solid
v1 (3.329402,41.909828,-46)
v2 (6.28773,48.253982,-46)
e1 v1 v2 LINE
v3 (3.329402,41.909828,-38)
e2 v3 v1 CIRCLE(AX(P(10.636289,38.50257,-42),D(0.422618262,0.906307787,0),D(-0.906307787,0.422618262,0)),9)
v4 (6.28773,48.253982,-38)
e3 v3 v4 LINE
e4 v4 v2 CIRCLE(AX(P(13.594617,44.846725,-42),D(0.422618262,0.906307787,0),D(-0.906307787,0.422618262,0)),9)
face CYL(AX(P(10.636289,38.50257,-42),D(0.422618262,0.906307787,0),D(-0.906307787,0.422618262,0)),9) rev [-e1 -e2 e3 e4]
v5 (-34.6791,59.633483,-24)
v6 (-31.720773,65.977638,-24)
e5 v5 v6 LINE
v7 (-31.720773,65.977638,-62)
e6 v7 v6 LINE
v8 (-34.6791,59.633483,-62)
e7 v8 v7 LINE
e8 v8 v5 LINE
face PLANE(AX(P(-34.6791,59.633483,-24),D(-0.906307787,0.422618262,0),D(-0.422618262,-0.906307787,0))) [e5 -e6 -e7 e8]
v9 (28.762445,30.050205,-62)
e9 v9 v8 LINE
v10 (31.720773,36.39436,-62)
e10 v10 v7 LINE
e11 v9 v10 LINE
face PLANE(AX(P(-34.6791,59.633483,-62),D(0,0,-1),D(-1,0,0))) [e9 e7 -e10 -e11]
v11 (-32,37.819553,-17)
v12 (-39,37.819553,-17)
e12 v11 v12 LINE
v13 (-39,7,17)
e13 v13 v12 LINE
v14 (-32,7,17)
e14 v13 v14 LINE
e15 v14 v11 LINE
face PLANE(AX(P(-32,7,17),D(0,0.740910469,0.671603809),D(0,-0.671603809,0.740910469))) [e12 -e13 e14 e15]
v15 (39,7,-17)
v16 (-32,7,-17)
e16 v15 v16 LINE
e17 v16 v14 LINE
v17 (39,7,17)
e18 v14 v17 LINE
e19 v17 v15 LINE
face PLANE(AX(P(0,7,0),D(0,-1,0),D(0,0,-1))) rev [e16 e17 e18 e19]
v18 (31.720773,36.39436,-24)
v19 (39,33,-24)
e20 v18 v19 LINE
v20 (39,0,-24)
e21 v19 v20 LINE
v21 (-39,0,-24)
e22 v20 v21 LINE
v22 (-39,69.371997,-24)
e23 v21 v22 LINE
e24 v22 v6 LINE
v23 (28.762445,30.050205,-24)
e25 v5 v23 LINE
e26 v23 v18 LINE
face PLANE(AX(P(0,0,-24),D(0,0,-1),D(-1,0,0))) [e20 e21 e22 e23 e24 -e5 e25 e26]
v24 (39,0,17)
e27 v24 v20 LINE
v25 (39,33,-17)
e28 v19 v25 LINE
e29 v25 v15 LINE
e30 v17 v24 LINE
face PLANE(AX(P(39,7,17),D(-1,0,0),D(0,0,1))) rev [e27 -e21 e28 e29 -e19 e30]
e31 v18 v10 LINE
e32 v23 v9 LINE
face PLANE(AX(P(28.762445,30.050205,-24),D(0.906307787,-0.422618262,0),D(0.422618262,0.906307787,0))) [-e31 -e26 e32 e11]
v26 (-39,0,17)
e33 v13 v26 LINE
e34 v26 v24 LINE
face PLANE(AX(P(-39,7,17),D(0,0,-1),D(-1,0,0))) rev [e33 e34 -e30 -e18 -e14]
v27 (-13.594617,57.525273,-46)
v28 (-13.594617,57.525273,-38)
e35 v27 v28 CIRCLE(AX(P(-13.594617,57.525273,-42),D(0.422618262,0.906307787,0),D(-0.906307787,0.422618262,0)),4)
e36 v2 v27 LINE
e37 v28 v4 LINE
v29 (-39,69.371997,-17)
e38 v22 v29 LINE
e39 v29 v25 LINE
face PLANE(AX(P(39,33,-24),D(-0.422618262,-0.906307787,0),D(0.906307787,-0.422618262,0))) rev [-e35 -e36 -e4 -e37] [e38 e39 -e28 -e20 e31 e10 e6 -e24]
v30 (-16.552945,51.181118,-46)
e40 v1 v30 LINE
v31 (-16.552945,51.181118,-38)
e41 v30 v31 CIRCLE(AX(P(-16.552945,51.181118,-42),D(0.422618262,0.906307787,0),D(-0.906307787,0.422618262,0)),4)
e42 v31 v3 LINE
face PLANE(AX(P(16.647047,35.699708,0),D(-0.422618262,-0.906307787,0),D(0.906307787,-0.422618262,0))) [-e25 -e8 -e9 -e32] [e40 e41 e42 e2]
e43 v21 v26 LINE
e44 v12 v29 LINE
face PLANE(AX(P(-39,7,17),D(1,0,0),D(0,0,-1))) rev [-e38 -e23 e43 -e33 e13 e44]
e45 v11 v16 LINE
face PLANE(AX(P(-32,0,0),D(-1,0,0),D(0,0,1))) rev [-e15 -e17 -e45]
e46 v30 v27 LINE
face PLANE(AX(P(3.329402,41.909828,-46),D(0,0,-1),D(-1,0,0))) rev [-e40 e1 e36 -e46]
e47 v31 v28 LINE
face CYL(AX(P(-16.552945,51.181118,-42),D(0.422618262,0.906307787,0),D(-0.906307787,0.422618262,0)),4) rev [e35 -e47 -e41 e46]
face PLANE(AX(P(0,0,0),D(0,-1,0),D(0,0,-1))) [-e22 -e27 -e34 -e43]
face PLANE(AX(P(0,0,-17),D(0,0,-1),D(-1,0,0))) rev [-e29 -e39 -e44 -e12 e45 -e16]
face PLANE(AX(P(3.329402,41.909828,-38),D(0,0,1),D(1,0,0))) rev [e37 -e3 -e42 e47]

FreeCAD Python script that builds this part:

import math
import FreeCAD as App
import Part
import Sketcher
from FreeCAD import Vector
Q = App.Units.Quantity


def add_polygon(sketch, points):
    """Adds a closed chain of lines whose ends are joined by coincident constraints."""
    first, n = sketch.GeometryCount, len(points)
    for a, b in zip(points, points[1:] + points[:1]):
        sketch.addGeometry(Part.LineSegment(App.Vector(*a, 0), App.Vector(*b, 0)), False)
    for i in range(n):
        sketch.addConstraint(Sketcher.Constraint("Coincident", first + i, 2, first + (i + 1) % n, 1))

doc = App.newDocument("Part")
body = doc.addObject("PartDesign::Body", "Body")

# Sketch on XZ plane
sketch1 = doc.addObject("Sketcher::SketchObject", "Sketch")
body.addObject(sketch1)
sketch1.AttachmentSupport = (doc.XZ_Plane, [""])
sketch1.MapMode = "FlatFace"
add_polygon(sketch1, [(-39, -17), (-39, 17), (39, 17), (39, -17)])  # lines 0-3
sketch1.addConstraint([
    Sketcher.Constraint("Vertical", 0),
    Sketcher.Constraint("Horizontal", 1),
    Sketcher.Constraint("Vertical", 2),
    Sketcher.Constraint("Horizontal", 3),
    Sketcher.Constraint("Symmetric", 0, 2, 2, 2, -1, 1),
    Sketcher.Constraint("DistanceX", 1, 1, 1, 2, 78.0),
    Sketcher.Constraint("DistanceY", 0, 1, 0, 2, 34.0),
])
pad1 = doc.addObject("PartDesign::Pad", "Pad")
body.addObject(pad1)
pad1.Profile = sketch1
pad1.Length = 7
pad1.Reversed = True

# Sketch on YZ plane
sketch2 = doc.addObject("Sketcher::SketchObject", "Sketch001")
body.addObject(sketch2)
sketch2.AttachmentSupport = (doc.YZ_Plane, [""])
sketch2.MapMode = "FlatFace"
sketch2.AttachmentOffset = App.Placement(Vector(0, 0, -39), App.Rotation())
add_polygon(sketch2, [(7, 17), (38, -17), (7, -17)])  # lines 0-2
sketch2.addConstraint([
    Sketcher.Constraint("Horizontal", 1),
    Sketcher.Constraint("Vertical", 2),
    Sketcher.Constraint("DistanceY", 2, 1, 2, 2, 34.0),
    Sketcher.Constraint("DistanceY", 0, 2, -1, 1, 17.0),
    Sketcher.Constraint("DistanceX", -1, 1, 1, 2, 7.0),
    Sketcher.Constraint("DistanceX", 1, 2, 1, 1, 30.819553),
])
pad2 = doc.addObject("PartDesign::Pad", "Pad001")
body.addObject(pad2)
pad2.Profile = sketch2
pad2.Length = 7

# Sketch on XY plane
sketch3 = doc.addObject("Sketcher::SketchObject", "Sketch002")
body.addObject(sketch3)
sketch3.AttachmentSupport = (doc.XY_Plane, [""])
sketch3.MapMode = "FlatFace"
sketch3.AttachmentOffset = App.Placement(Vector(0, 0, -17), App.Rotation())
add_polygon(sketch3, [(39, 33), (39, 0), (-39, 0), (-39, 69)])  # lines 0-3
sketch3.addConstraint([
    Sketcher.Constraint("Vertical", 0),
    Sketcher.Constraint("Horizontal", 1),
    Sketcher.Constraint("Vertical", 2),
    Sketcher.Constraint("Symmetric", 0, 2, 1, 2, -1, 1),
    Sketcher.Constraint("DistanceX", 1, 2, 1, 1, 78.0),
    Sketcher.Constraint("DistanceY", 0, 2, 0, 1, 33.0),
    Sketcher.Constraint("Angle", 3, Q("-25 deg")),
])
pad3 = doc.addObject("PartDesign::Pad", "Pad002")
body.addObject(pad3)
pad3.Profile = sketch3
pad3.Length = 7
pad3.Reversed = True

# Sketch on an angled plane
sketch4 = doc.addObject("Sketcher::SketchObject", "Sketch003")
body.addObject(sketch4)
sketch4.Placement = App.Placement(Vector(19.605375, 42.043862, 0), App.Rotation(Vector(0.906307787, -0.422618262, 0), Vector(0, 0, -1), Vector(0.422618262, 0.906307787, 0), "ZXY"))
add_polygon(sketch4, [(-57, 62), (-57, 24), (13, 24), (13, 62)])  # lines 0-3
sketch4.addConstraint([
    Sketcher.Constraint("Vertical", 0),
    Sketcher.Constraint("Horizontal", 1),
    Sketcher.Constraint("Vertical", 2),
    Sketcher.Constraint("Horizontal", 3),
    Sketcher.Constraint("DistanceX", 1, 1, 1, 2, 70.0),
    Sketcher.Constraint("DistanceY", 0, 2, 0, 1, 38.0),
    Sketcher.Constraint("DistanceY", -1, 1, 0, 2, 24.0),
    Sketcher.Constraint("DistanceX", 0, 2, -1, 1, 56.632138),
])
pad4 = doc.addObject("PartDesign::Pad", "Pad003")
body.addObject(pad4)
pad4.Profile = sketch4
pad4.Length = 7
pad4.Reversed = True

# Sketch on an angled plane
sketch5 = doc.addObject("Sketcher::SketchObject", "Sketch004")
body.addObject(sketch5)
sketch5.Placement = App.Placement(Vector(19.605375, 42.043862, 0), App.Rotation(Vector(0.906307787, -0.422618262, 0), Vector(0, 0, -1), Vector(0.422618262, 0.906307787, 0), "ZXY"))
sketch5.addGeometry([
    Part.LineSegment(Vector(-36.6, 38, 0), Vector(-14.7, 38, 0)),
    Part.ArcOfCircle(Part.Circle(Vector(-6.6, 42, 0), Vector(0, 0, 1), 9), math.radians(-154), math.radians(154)),
    Part.LineSegment(Vector(-14.7, 46, 0), Vector(-36.6, 46, 0)),
    Part.ArcOfCircle(Part.Circle(Vector(-36.6, 42, 0), Vector(0, 0, 1), 4), math.radians(90), math.radians(270)),
], False)
sketch5.addConstraint([
    Sketcher.Constraint("Coincident", 0, 2, 1, 1),
    Sketcher.Constraint("Coincident", 1, 2, 2, 1),
    Sketcher.Constraint("Tangent", 2, 2, 3, 1),
    Sketcher.Constraint("Tangent", 3, 2, 0, 1),
    Sketcher.Constraint("Horizontal", 0),
    Sketcher.Constraint("Horizontal", 2),
    Sketcher.Constraint("Horizontal", 1, 3, 3, 3),
    Sketcher.Constraint("Radius", 1, 9.0),
    Sketcher.Constraint("Radius", 3, 4.0),
    Sketcher.Constraint("DistanceY", -1, 1, 1, 3, 42.0),
    Sketcher.Constraint("DistanceX", 3, 3, 1, 3, 30.0),
    Sketcher.Constraint("DistanceX", 1, 3, -1, 1, 6.632138),
])
pocket1 = doc.addObject("PartDesign::Pocket", "Pocket")
body.addObject(pocket1)
pocket1.Profile = sketch5
pocket1.Length = 7

doc.recompute()
